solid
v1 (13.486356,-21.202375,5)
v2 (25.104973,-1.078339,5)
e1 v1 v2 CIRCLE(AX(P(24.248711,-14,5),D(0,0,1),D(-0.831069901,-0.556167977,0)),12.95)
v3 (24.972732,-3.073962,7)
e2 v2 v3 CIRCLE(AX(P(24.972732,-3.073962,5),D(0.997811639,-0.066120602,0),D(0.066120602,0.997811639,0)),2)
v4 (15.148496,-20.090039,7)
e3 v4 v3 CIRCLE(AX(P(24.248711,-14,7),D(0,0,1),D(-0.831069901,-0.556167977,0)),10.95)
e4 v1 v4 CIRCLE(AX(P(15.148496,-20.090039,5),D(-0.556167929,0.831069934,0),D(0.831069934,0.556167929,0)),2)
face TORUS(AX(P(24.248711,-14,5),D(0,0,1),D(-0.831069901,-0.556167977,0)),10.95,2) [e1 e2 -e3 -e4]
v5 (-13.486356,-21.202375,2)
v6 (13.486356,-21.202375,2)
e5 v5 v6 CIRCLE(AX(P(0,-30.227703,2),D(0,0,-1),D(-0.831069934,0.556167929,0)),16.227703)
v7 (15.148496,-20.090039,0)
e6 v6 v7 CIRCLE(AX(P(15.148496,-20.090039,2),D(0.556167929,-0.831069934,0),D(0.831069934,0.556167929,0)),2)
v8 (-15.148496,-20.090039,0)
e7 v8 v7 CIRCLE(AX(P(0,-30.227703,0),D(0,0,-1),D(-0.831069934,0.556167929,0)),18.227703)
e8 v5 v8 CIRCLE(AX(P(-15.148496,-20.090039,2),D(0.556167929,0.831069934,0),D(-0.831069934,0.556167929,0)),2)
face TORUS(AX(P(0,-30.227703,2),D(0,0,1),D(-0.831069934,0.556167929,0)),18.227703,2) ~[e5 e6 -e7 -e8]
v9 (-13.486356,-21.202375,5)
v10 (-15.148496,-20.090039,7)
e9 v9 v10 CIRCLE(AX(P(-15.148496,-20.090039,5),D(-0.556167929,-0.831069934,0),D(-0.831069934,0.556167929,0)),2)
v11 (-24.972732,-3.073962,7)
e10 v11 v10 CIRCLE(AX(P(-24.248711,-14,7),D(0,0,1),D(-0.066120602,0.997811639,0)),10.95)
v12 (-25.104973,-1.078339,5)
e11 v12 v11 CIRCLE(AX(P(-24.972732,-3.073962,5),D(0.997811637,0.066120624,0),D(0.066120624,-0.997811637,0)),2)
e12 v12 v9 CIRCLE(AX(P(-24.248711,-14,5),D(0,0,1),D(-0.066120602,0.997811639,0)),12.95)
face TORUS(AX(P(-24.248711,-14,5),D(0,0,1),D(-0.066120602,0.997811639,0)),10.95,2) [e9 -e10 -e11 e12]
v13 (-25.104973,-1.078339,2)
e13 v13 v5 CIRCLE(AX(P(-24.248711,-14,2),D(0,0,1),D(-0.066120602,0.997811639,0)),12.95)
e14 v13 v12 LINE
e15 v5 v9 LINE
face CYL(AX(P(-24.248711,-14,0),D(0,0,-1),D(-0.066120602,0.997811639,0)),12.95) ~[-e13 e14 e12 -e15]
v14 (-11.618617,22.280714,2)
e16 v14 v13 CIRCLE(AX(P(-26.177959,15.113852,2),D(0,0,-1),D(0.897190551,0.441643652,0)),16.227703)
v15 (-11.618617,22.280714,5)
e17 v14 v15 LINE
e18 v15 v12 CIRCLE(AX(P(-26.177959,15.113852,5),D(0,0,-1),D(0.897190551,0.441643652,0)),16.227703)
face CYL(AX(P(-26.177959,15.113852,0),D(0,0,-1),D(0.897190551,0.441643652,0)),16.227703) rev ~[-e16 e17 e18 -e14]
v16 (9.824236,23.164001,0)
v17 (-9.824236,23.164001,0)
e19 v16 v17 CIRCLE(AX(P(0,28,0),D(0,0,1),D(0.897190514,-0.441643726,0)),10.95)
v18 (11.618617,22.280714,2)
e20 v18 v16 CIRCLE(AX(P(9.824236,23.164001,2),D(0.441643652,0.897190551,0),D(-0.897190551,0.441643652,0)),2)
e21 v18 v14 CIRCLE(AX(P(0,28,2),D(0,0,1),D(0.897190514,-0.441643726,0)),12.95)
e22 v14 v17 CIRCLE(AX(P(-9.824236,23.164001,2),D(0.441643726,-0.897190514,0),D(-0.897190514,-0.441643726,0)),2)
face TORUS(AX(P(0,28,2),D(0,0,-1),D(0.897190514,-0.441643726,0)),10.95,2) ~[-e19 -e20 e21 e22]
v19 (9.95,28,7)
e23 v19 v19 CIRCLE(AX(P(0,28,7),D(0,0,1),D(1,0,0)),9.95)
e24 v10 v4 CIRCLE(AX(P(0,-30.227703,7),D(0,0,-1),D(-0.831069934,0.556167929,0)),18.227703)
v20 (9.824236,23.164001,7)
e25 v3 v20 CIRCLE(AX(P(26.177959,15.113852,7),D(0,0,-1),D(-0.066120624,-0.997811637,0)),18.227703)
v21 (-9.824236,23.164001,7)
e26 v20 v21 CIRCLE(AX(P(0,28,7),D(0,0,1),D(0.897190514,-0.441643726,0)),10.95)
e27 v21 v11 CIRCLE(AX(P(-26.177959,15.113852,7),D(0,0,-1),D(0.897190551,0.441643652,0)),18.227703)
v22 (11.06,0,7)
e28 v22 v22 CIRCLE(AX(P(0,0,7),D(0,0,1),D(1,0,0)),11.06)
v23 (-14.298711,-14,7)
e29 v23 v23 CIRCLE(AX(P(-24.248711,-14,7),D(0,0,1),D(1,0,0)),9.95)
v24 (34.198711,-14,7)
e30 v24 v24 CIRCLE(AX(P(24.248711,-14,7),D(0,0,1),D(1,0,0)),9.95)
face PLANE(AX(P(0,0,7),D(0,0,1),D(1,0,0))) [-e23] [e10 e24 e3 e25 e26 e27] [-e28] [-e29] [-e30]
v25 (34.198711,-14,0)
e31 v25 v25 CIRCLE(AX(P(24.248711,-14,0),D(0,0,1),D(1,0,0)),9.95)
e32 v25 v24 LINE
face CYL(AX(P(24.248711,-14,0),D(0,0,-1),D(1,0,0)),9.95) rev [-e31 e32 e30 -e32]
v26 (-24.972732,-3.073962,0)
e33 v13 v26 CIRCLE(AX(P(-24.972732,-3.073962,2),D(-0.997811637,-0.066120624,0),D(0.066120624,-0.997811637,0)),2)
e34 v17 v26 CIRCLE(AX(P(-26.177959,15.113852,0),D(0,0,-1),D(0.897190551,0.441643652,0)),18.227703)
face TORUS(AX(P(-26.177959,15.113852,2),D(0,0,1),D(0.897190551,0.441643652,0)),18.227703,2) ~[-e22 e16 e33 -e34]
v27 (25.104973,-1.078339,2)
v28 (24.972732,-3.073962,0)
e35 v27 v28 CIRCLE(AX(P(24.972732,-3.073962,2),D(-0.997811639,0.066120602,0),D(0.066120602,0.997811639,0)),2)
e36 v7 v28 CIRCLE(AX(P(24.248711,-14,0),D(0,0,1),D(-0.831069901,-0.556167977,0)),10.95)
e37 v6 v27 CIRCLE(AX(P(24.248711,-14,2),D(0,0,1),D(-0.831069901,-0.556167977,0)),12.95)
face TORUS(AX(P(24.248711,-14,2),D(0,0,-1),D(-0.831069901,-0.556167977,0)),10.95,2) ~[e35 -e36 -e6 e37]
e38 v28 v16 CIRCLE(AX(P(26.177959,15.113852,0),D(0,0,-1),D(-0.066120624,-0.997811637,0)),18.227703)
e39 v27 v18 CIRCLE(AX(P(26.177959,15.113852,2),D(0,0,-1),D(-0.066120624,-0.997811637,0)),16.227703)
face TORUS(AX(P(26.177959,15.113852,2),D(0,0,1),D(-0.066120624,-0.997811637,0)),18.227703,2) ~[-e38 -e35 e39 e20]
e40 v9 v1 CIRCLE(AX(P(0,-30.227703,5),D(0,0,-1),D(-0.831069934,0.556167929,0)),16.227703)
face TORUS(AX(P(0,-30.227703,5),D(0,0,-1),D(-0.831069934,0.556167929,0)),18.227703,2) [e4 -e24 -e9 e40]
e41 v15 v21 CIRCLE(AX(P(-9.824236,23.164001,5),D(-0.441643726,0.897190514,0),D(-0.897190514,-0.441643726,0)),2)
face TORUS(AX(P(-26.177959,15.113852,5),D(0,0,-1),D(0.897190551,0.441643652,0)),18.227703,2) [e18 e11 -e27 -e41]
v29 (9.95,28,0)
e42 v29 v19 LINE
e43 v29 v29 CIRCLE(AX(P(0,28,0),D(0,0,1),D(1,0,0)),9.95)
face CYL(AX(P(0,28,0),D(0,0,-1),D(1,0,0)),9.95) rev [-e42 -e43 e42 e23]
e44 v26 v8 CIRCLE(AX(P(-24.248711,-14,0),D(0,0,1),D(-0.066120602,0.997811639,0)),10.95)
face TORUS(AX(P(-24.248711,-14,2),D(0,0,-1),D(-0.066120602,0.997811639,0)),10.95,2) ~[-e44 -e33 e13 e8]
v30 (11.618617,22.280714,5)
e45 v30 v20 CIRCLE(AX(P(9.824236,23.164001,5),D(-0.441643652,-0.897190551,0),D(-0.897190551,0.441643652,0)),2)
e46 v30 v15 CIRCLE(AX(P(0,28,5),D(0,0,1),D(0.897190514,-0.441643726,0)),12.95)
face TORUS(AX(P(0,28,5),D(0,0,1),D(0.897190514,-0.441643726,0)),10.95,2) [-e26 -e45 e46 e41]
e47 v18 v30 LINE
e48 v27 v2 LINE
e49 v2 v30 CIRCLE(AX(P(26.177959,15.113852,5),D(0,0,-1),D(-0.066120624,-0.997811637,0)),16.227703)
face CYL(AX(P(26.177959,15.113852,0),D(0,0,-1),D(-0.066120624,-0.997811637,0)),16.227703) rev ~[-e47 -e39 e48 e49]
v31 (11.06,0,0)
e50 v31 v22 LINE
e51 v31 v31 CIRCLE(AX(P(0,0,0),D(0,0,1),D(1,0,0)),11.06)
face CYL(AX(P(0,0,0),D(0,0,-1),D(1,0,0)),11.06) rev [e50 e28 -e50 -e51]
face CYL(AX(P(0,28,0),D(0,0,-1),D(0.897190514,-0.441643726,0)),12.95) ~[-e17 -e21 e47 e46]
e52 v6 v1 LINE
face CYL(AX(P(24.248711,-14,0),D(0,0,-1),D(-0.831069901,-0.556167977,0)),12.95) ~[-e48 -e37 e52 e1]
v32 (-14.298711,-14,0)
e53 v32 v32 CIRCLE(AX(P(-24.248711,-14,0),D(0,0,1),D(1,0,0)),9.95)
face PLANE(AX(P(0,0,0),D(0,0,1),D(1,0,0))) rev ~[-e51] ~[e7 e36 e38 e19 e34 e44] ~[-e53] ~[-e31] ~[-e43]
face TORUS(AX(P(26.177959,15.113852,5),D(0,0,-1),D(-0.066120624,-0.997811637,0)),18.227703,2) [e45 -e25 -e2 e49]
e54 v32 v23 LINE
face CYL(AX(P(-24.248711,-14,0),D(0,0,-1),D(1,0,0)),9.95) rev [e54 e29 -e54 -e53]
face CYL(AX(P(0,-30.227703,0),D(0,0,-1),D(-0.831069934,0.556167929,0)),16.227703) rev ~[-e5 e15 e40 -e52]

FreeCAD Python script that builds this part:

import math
import FreeCAD as App
import Part
import Sketcher
from FreeCAD import Vector


def edges_at(feature, points):
    """Names of the edges that pass closest to the given points."""
    edges = feature.Shape.Edges
    near = lambda p: min(range(len(edges)), key=lambda i: edges[i].distToShape(Part.Vertex(*p))[0])
    return sorted({f"Edge{near(p) + 1}" for p in points})

doc = App.newDocument("Part")
body = doc.addObject("PartDesign::Body", "Body")

# Sketch on XY plane
sketch1 = doc.addObject("Sketcher::SketchObject", "Sketch")
body.addObject(sketch1)
sketch1.AttachmentSupport = (doc.XY_Plane, [""])
sketch1.MapMode = "FlatFace"
sketch1.addGeometry([
    Part.ArcOfCircle(Part.Circle(Vector(26, 15, 0), Vector(0, 0, 1), 16), math.radians(154), math.radians(266)),  # 0
    Part.ArcOfCircle(Part.Circle(Vector(0, 28, 0), Vector(0, 0, 1), 13), math.radians(-26), math.radians(206)),  # 1
    Part.ArcOfCircle(Part.Circle(Vector(-26, 15, 0), Vector(0, 0, 1), 16), math.radians(-86), math.radians(26)),  # 2
    Part.ArcOfCircle(Part.Circle(Vector(-24, -14, 0), Vector(0, 0, 1), 13), math.radians(94), math.radians(326)),  # 3
    Part.ArcOfCircle(Part.Circle(Vector(0, -30, 0), Vector(0, 0, 1), 16), math.radians(34), math.radians(146)),  # 4
    Part.ArcOfCircle(Part.Circle(Vector(24, -14, 0), Vector(0, 0, 1), 13), math.radians(-146), math.radians(86)),  # 5
    Part.Circle(Vector(-24, -14, 0), Vector(0, 0, 1), 10),  # 6
    Part.Circle(Vector(24, -14, 0), Vector(0, 0, 1), 10),  # 7
    Part.Circle(Vector(0, 0, 0), Vector(0, 0, 1), 11),  # 8
    Part.Circle(Vector(0, 28, 0), Vector(0, 0, 1), 10),  # 9
], False)
sketch1.addConstraint([
    Sketcher.Constraint("Tangent", 0, 1, 1, 1),
    Sketcher.Constraint("Tangent", 1, 2, 2, 2),
    Sketcher.Constraint("Tangent", 2, 1, 3, 1),
    Sketcher.Constraint("Tangent", 3, 2, 4, 2),
    Sketcher.Constraint("Tangent", 4, 1, 5, 1),
    Sketcher.Constraint("Tangent", 5, 2, 0, 2),
    Sketcher.Constraint("Coincident", 8, 3, -1, 1),
    Sketcher.Constraint("Coincident", 6, 3, 3, 3),
    Sketcher.Constraint("Coincident", 7, 3, 5, 3),
    Sketcher.Constraint("Coincident", 9, 3, 1, 3),
    Sketcher.Constraint("Equal", 0, 2),
    Sketcher.Constraint("Equal", 1, 3),
    Sketcher.Constraint("Equal", 2, 4),
    Sketcher.Constraint("Equal", 3, 5),
    Sketcher.Constraint("Equal", 6, 7),
    Sketcher.Constraint("Equal", 7, 9),
    Sketcher.Constraint("Symmetric", 0, 3, 2, 3, -2),
    Sketcher.Constraint("PointOnObject", 4, 3, -2),
    Sketcher.Constraint("Diameter", 6, 19.9),
    Sketcher.Constraint("Diameter", 8, 22.12),
    Sketcher.Constraint("Radius", 1, 12.95),
    Sketcher.Constraint("DistanceY", -1, 1, 1, 3, 28.0),
    Sketcher.Constraint("DistanceY", 3, 3, -1, 1, 14.0),
    Sketcher.Constraint("Radius", 0, 16.227703),
    Sketcher.Constraint("DistanceX", -1, 1, 0, 3, 26.177959),
])
pad1 = doc.addObject("PartDesign::Pad", "Pad")
body.addObject(pad1)
pad1.Profile = sketch1
pad1.Length = 7
doc.recompute()

fillet = doc.addObject("PartDesign::Fillet", "Fillet")
body.addObject(fillet)
fillet.Base = (pad1, edges_at(pad1, [(0, -14, 7), (0, -14, 0)]))
fillet.Radius = 2

doc.recompute()
